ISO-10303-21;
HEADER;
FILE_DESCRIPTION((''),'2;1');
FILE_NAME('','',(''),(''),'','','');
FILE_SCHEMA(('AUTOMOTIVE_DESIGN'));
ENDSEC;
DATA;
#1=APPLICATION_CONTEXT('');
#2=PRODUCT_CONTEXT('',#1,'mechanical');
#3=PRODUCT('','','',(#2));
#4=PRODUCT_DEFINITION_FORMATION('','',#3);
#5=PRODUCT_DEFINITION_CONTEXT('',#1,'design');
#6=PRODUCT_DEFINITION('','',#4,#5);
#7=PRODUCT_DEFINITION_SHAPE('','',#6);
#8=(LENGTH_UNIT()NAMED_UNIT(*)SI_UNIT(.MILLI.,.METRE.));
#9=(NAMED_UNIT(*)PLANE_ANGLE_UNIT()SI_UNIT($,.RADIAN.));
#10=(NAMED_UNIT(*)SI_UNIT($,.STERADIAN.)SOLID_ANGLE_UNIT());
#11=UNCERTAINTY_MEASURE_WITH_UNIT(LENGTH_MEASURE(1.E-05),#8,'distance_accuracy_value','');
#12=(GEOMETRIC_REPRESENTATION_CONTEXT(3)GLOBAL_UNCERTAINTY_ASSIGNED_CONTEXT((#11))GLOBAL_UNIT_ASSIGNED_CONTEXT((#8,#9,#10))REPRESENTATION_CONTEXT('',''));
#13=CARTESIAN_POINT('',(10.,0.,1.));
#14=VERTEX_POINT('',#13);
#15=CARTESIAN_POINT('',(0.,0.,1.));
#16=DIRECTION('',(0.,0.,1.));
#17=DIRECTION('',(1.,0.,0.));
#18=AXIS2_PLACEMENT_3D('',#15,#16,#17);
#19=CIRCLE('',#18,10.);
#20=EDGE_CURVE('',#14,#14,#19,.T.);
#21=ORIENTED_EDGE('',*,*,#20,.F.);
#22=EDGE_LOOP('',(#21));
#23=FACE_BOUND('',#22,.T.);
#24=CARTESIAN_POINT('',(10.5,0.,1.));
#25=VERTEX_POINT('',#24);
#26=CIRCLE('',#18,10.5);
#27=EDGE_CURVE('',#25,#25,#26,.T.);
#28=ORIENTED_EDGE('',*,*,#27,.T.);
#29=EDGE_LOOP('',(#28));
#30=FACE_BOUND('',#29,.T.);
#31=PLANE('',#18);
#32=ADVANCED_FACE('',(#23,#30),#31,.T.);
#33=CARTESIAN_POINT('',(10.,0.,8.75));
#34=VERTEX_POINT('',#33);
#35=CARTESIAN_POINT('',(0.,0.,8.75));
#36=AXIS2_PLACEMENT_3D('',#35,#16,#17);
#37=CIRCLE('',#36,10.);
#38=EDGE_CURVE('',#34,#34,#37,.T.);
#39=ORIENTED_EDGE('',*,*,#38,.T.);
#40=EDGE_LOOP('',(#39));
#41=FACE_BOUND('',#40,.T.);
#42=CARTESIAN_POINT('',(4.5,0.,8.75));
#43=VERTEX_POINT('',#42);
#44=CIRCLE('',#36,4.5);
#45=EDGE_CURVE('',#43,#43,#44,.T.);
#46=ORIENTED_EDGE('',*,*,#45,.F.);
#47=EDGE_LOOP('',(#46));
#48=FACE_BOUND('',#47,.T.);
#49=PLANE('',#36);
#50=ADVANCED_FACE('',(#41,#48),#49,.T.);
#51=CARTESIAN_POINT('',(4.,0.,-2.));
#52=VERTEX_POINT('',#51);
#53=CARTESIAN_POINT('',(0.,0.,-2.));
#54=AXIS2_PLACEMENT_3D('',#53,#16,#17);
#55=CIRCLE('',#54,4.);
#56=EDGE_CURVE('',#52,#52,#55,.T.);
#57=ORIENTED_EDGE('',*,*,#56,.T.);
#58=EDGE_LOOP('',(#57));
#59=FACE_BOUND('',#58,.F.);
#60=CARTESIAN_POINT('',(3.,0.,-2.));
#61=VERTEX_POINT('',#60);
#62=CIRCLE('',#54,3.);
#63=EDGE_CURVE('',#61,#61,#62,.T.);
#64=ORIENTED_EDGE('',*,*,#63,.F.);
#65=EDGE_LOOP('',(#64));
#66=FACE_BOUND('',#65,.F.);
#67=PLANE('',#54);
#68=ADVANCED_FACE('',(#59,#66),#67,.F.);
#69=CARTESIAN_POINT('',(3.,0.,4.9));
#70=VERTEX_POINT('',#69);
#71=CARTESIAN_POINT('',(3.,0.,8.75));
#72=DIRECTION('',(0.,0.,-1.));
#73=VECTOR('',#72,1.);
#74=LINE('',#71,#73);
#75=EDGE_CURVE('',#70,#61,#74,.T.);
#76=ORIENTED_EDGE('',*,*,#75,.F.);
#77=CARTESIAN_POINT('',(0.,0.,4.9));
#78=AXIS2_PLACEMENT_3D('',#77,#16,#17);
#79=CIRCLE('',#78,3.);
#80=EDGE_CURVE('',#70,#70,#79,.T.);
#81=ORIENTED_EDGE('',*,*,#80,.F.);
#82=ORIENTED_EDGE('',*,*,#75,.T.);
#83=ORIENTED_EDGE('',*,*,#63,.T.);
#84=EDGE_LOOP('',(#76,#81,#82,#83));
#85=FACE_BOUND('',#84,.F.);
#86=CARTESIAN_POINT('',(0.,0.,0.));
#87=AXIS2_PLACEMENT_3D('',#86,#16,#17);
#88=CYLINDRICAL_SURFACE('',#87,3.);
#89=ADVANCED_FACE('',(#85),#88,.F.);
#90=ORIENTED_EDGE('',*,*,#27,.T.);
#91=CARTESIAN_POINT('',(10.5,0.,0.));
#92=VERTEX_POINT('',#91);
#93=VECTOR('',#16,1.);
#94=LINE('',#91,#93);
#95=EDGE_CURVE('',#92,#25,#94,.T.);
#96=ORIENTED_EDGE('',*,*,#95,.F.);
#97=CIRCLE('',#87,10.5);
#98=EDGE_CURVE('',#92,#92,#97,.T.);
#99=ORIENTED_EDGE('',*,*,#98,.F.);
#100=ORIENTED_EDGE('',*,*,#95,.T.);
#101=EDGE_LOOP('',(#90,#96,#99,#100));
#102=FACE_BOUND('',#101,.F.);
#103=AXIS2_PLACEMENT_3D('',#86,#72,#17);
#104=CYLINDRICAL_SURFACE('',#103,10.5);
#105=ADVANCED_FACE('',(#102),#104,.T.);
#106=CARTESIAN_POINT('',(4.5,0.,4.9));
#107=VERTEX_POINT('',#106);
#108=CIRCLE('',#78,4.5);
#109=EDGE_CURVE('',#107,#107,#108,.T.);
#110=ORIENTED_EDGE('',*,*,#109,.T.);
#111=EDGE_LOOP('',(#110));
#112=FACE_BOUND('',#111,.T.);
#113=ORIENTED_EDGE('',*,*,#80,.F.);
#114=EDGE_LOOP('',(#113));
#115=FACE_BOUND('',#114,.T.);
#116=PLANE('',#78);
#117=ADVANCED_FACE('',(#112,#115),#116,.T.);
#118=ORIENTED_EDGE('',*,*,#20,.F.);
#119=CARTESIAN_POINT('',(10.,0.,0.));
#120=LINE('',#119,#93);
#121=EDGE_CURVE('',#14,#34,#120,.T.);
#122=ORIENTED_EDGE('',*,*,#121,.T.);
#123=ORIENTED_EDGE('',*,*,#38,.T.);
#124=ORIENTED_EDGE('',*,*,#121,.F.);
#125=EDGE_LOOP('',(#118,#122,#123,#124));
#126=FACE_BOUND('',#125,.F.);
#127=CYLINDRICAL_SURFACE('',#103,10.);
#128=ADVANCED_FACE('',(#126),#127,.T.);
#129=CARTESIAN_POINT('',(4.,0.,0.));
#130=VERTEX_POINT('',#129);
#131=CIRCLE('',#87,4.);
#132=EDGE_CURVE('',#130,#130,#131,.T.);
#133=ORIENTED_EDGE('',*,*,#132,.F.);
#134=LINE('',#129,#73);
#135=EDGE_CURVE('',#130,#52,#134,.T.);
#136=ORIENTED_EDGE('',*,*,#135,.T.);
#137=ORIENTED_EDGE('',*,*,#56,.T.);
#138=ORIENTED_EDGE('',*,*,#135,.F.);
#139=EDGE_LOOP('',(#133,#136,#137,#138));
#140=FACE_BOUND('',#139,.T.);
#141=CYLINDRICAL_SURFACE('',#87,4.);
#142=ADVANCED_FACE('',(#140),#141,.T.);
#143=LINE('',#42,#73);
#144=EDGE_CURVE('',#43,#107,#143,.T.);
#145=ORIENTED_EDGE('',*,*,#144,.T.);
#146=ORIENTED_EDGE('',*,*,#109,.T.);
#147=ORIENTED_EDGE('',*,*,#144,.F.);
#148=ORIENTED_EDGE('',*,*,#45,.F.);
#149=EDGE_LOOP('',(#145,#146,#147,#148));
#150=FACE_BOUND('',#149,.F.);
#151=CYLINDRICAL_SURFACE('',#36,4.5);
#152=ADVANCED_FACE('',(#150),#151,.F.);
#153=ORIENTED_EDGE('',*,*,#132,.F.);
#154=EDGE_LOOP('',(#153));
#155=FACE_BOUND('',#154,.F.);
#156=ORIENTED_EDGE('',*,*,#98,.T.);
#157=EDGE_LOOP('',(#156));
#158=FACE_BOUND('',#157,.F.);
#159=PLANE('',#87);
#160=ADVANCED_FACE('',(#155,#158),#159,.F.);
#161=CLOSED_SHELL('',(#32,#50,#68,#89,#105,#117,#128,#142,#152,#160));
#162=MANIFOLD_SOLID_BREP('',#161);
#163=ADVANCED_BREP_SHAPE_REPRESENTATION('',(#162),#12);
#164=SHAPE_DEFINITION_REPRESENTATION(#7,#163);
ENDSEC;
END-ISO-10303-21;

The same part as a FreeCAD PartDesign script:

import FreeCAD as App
import Part
import Sketcher

V = App.Vector

doc = App.newDocument("Part")
body = doc.addObject("PartDesign::Body", "Body")

# Sketch on XY plane
sketch1 = body.newObject("Sketcher::SketchObject", "Sketch")
sketch1.AttachmentSupport = (doc.getObject("XY_Plane"), [""])
sketch1.MapMode = "FlatFace"
sketch1.addGeometry([
    Part.Circle(V(0, 0, 0), V(0, 0, 1), 10),
    Part.Circle(V(0, 0, 0), V(0, 0, 1), 10),
], False)
sketch1.addConstraint([
    Sketcher.Constraint("Coincident", 0, 3, -1, 1),
    Sketcher.Constraint("Coincident", 1, 3, -1, 1),
    Sketcher.Constraint("Diameter", 0, 20.0),
    Sketcher.Constraint("Diameter", 1, 19.0),
])
pad1 = body.newObject("PartDesign::Pad", "Pad")
pad1.Profile = sketch1
pad1.Length = 8.75

# Sketch on XY plane
sketch2 = body.newObject("Sketcher::SketchObject", "Sketch001")
sketch2.AttachmentSupport = (doc.getObject("XY_Plane"), [""])
sketch2.MapMode = "FlatFace"
sketch2.addGeometry(Part.Circle(V(0, 0, 0), V(0, 0, 1), 10), False)
sketch2.addConstraint([
    Sketcher.Constraint("Coincident", 0, 3, -1, 1),
    Sketcher.Constraint("Diameter", 0, 19.0),
])
pad2 = body.newObject("PartDesign::Pad", "Pad001")
pad2.Profile = sketch2
pad2.Length = 8.75

# Sketch on XY plane
sketch3 = body.newObject("Sketcher::SketchObject", "Sketch002")
sketch3.AttachmentSupport = (doc.getObject("XY_Plane"), [""])
sketch3.MapMode = "FlatFace"
sketch3.addGeometry([
    Part.Circle(V(0, 0, 0), V(0, 0, 1), 10),
    Part.Circle(V(0, 0, 0), V(0, 0, 1), 10),
], False)
sketch3.addConstraint([
    Sketcher.Constraint("Coincident", 0, 3, -1, 1),
    Sketcher.Constraint("Coincident", 1, 3, -1, 1),
    Sketcher.Constraint("Diameter", 0, 21.0),
    Sketcher.Constraint("Diameter", 1, 20.0),
])
pad3 = body.newObject("PartDesign::Pad", "Pad002")
pad3.Profile = sketch3
pad3.Length = 1

# Sketch on XY plane
sketch4 = body.newObject("Sketcher::SketchObject", "Sketch003")
sketch4.AttachmentSupport = (doc.getObject("XY_Plane"), [""])
sketch4.MapMode = "FlatFace"
sketch4.addGeometry([
    Part.Circle(V(0, 0, 0), V(0, 0, 1), 4),
    Part.Circle(V(0, 0, 0), V(0, 0, 1), 3),
], False)
sketch4.addConstraint([
    Sketcher.Constraint("Coincident", 0, 3, -1, 1),
    Sketcher.Constraint("Coincident", 1, 3, -1, 1),
    Sketcher.Constraint("Diameter", 0, 8.0),
    Sketcher.Constraint("Diameter", 1, 6.0),
])
pad4 = body.newObject("PartDesign::Pad", "Pad003")
pad4.Profile = sketch4
pad4.Length = 2
pad4.Reversed = True

# Sketch on XY plane
sketch5 = body.newObject("Sketcher::SketchObject", "Sketch004")
sketch5.AttachmentSupport = (doc.getObject("XY_Plane"), [""])
sketch5.MapMode = "FlatFace"
sketch5.addGeometry(Part.Circle(V(0, 0, 0), V(0, 0, 1), 1.5), False)
sketch5.addConstraint([
    Sketcher.Constraint("Coincident", 0, 3, -1, 1),
    Sketcher.Constraint("Diameter", 0, 3.0),
])
pocket1 = body.newObject("PartDesign::Pocket", "Pocket")
pocket1.Profile = sketch5
pocket1.Length = 20
pocket1.Reversed = True

# Sketch on XY plane
sketch6 = body.newObject("Sketcher::SketchObject", "Sketch005")
sketch6.AttachmentSupport = (doc.getObject("XY_Plane"), [""])
sketch6.MapMode = "FlatFace"
sketch6.addGeometry([
    Part.Circle(V(0, 0, 0), V(0, 0, 1), 3),
    Part.Circle(V(0, 0, 0), V(0, 0, 1), 1.5),
], False)
sketch6.addConstraint([
    Sketcher.Constraint("Coincident", 0, 3, -1, 1),
    Sketcher.Constraint("Coincident", 1, 3, -1, 1),
    Sketcher.Constraint("Diameter", 0, 6.0),
    Sketcher.Constraint("Diameter", 1, 3.0),
])
pocket2 = body.newObject("PartDesign::Pocket", "Pocket001")
pocket2.Profile = sketch6
pocket2.Length = 20
pocket2.Reversed = True

# Sketch on XY plane
sketch7 = body.newObject("Sketcher::SketchObject", "Sketch006")
sketch7.AttachmentSupport = (doc.getObject("XY_Plane"), [""])
sketch7.MapMode = "FlatFace"
sketch7.AttachmentOffset = App.Placement(V(0, 0, 8.75), App.Rotation())
sketch7.addGeometry(Part.Circle(V(0, 0, 0), V(0, 0, 1), 4.5), False)
sketch7.addConstraint([
    Sketcher.Constraint("Coincident", 0, 3, -1, 1),
    Sketcher.Constraint("Diameter", 0, 9.0),
])
pocket3 = body.newObject("PartDesign::Pocket", "Pocket002")
pocket3.Profile = sketch7
pocket3.Length = 3.85

doc.recompute()
